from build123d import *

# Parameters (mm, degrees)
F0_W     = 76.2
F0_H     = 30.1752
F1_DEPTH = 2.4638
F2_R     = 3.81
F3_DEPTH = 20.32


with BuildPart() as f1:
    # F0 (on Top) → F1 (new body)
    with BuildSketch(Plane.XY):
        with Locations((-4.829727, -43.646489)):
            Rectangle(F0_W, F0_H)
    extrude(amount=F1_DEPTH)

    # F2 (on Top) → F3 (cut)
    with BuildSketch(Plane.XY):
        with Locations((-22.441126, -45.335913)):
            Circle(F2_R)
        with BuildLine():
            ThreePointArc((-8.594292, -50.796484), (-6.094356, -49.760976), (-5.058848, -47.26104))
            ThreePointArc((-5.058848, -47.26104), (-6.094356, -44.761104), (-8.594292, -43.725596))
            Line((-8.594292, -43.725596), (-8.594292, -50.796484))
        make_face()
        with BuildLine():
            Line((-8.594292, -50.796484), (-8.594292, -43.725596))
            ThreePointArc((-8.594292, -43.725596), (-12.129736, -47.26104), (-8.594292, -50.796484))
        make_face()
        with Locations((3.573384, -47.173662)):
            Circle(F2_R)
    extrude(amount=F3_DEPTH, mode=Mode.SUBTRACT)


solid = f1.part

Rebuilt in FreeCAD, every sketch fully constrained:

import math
import FreeCAD as App
import Part
import Sketcher
from FreeCAD import Vector
Q = App.Units.Quantity

doc = App.newDocument("Part")
body = doc.addObject("PartDesign::Body", "Body")

# Sketch on XY plane
sketch1 = body.newObject("Sketcher::SketchObject", "Sketch")
sketch1.AttachmentSupport = (doc.getObject("XY_Plane"), [""])
sketch1.MapMode = "FlatFace"
sketch1.addGeometry(Part.LineSegment(Vector(-43, -29, 0), Vector(-43, -59, 0)), False)
sketch1.addGeometry(Part.LineSegment(Vector(-43, -59, 0), Vector(33, -59, 0)), False)
sketch1.addGeometry(Part.LineSegment(Vector(33, -59, 0), Vector(33, -29, 0)), False)
sketch1.addGeometry(Part.LineSegment(Vector(33, -29, 0), Vector(-43, -29, 0)), False)
sketch1.addConstraint(Sketcher.Constraint("Coincident", 0, 2, 1, 1))
sketch1.addConstraint(Sketcher.Constraint("Coincident", 1, 2, 2, 1))
sketch1.addConstraint(Sketcher.Constraint("Coincident", 2, 2, 3, 1))
sketch1.addConstraint(Sketcher.Constraint("Coincident", 3, 2, 0, 1))
sketch1.addConstraint(Sketcher.Constraint("Vertical", 0))
sketch1.addConstraint(Sketcher.Constraint("Horizontal", 1))
sketch1.addConstraint(Sketcher.Constraint("Vertical", 2))
sketch1.addConstraint(Sketcher.Constraint("Horizontal", 3))
sketch1.addConstraint(Sketcher.Constraint("DistanceX", 1, 1, 1, 2, Q("3 in")))
sketch1.addConstraint(Sketcher.Constraint("DistanceY", 0, 2, 0, 1, Q("1.188 in")))
sketch1.addConstraint(Sketcher.Constraint("DistanceY", 0, 2, -1, 1, Q("58.734089 mm")))
sketch1.addConstraint(Sketcher.Constraint("DistanceX", 0, 2, -1, 1, Q("42.929727 mm")))
pad1 = body.newObject("PartDesign::Pad", "Pad")
pad1.Profile = sketch1
pad1.Length = Q("0.097 in")

# Sketch on XY plane
sketch2 = body.newObject("Sketcher::SketchObject", "Sketch001")
sketch2.AttachmentSupport = (doc.getObject("XY_Plane"), [""])
sketch2.MapMode = "FlatFace"
sketch2.addGeometry(Part.Circle(Vector(-22.4, -45.3, 0), Vector(0, 0, 1), 3.8), False)
sketch2.addGeometry(Part.ArcOfCircle(Part.Circle(Vector(-8.6, -47.3, 0), Vector(0, 0, 1), 3.5), math.radians(-90), math.radians(0)), False)
sketch2.addGeometry(Part.ArcOfCircle(Part.Circle(Vector(-8.6, -47.3, 0), Vector(0, 0, 1), 3.5), math.radians(0), math.radians(90)), False)
sketch2.addGeometry(Part.ArcOfCircle(Part.Circle(Vector(-8.6, -47.3, 0), Vector(0, 0, 1), 3.5), math.radians(90), math.radians(270)), False)
sketch2.addGeometry(Part.Circle(Vector(3.6, -47.2, 0), Vector(0, 0, 1), 3.8), False)
sketch2.addConstraint(Sketcher.Constraint("Tangent", 1, 2, 2, 1))
sketch2.addConstraint(Sketcher.Constraint("Tangent", 2, 2, 3, 1))
sketch2.addConstraint(Sketcher.Constraint("Tangent", 3, 2, 1, 1))
sketch2.addConstraint(Sketcher.Constraint("Equal", 0, 4))
sketch2.addConstraint(Sketcher.Constraint("Horizontal", 3, 3, 1, 2))
sketch2.addConstraint(Sketcher.Constraint("Vertical", 3, 3, 2, 2))
sketch2.addConstraint(Sketcher.Constraint("Vertical", 2, 2, 3, 2))
sketch2.addConstraint(Sketcher.Constraint("Diameter", 0, Q("0.3 in")))
sketch2.addConstraint(Sketcher.Constraint("Radius", 1, Q("3.535445 mm")))
sketch2.addConstraint(Sketcher.Constraint("DistanceY", 1, 3, -1, 1, Q("47.261039 mm")))
sketch2.addConstraint(Sketcher.Constraint("DistanceX", 3, 3, -1, 1, Q("8.594292 mm")))
sketch2.addConstraint(Sketcher.Constraint("DistanceY", 2, 3, 0, 3, Q("1.925128 mm")))
sketch2.addConstraint(Sketcher.Constraint("DistanceY", 3, 3, 4, 3, Q("0.087378 mm")))
sketch2.addConstraint(Sketcher.Constraint("DistanceX", 0, 3, 4, 3, Q("26.01451 mm")))
sketch2.addConstraint(Sketcher.Constraint("DistanceX", 0, 3, -1, 1, Q("22.441126 mm")))
pocket1 = body.newObject("PartDesign::Pocket", "Pocket")
pocket1.Profile = sketch2
pocket1.Length = Q("0.8 in")
pocket1.Reversed = True

doc.recompute()
